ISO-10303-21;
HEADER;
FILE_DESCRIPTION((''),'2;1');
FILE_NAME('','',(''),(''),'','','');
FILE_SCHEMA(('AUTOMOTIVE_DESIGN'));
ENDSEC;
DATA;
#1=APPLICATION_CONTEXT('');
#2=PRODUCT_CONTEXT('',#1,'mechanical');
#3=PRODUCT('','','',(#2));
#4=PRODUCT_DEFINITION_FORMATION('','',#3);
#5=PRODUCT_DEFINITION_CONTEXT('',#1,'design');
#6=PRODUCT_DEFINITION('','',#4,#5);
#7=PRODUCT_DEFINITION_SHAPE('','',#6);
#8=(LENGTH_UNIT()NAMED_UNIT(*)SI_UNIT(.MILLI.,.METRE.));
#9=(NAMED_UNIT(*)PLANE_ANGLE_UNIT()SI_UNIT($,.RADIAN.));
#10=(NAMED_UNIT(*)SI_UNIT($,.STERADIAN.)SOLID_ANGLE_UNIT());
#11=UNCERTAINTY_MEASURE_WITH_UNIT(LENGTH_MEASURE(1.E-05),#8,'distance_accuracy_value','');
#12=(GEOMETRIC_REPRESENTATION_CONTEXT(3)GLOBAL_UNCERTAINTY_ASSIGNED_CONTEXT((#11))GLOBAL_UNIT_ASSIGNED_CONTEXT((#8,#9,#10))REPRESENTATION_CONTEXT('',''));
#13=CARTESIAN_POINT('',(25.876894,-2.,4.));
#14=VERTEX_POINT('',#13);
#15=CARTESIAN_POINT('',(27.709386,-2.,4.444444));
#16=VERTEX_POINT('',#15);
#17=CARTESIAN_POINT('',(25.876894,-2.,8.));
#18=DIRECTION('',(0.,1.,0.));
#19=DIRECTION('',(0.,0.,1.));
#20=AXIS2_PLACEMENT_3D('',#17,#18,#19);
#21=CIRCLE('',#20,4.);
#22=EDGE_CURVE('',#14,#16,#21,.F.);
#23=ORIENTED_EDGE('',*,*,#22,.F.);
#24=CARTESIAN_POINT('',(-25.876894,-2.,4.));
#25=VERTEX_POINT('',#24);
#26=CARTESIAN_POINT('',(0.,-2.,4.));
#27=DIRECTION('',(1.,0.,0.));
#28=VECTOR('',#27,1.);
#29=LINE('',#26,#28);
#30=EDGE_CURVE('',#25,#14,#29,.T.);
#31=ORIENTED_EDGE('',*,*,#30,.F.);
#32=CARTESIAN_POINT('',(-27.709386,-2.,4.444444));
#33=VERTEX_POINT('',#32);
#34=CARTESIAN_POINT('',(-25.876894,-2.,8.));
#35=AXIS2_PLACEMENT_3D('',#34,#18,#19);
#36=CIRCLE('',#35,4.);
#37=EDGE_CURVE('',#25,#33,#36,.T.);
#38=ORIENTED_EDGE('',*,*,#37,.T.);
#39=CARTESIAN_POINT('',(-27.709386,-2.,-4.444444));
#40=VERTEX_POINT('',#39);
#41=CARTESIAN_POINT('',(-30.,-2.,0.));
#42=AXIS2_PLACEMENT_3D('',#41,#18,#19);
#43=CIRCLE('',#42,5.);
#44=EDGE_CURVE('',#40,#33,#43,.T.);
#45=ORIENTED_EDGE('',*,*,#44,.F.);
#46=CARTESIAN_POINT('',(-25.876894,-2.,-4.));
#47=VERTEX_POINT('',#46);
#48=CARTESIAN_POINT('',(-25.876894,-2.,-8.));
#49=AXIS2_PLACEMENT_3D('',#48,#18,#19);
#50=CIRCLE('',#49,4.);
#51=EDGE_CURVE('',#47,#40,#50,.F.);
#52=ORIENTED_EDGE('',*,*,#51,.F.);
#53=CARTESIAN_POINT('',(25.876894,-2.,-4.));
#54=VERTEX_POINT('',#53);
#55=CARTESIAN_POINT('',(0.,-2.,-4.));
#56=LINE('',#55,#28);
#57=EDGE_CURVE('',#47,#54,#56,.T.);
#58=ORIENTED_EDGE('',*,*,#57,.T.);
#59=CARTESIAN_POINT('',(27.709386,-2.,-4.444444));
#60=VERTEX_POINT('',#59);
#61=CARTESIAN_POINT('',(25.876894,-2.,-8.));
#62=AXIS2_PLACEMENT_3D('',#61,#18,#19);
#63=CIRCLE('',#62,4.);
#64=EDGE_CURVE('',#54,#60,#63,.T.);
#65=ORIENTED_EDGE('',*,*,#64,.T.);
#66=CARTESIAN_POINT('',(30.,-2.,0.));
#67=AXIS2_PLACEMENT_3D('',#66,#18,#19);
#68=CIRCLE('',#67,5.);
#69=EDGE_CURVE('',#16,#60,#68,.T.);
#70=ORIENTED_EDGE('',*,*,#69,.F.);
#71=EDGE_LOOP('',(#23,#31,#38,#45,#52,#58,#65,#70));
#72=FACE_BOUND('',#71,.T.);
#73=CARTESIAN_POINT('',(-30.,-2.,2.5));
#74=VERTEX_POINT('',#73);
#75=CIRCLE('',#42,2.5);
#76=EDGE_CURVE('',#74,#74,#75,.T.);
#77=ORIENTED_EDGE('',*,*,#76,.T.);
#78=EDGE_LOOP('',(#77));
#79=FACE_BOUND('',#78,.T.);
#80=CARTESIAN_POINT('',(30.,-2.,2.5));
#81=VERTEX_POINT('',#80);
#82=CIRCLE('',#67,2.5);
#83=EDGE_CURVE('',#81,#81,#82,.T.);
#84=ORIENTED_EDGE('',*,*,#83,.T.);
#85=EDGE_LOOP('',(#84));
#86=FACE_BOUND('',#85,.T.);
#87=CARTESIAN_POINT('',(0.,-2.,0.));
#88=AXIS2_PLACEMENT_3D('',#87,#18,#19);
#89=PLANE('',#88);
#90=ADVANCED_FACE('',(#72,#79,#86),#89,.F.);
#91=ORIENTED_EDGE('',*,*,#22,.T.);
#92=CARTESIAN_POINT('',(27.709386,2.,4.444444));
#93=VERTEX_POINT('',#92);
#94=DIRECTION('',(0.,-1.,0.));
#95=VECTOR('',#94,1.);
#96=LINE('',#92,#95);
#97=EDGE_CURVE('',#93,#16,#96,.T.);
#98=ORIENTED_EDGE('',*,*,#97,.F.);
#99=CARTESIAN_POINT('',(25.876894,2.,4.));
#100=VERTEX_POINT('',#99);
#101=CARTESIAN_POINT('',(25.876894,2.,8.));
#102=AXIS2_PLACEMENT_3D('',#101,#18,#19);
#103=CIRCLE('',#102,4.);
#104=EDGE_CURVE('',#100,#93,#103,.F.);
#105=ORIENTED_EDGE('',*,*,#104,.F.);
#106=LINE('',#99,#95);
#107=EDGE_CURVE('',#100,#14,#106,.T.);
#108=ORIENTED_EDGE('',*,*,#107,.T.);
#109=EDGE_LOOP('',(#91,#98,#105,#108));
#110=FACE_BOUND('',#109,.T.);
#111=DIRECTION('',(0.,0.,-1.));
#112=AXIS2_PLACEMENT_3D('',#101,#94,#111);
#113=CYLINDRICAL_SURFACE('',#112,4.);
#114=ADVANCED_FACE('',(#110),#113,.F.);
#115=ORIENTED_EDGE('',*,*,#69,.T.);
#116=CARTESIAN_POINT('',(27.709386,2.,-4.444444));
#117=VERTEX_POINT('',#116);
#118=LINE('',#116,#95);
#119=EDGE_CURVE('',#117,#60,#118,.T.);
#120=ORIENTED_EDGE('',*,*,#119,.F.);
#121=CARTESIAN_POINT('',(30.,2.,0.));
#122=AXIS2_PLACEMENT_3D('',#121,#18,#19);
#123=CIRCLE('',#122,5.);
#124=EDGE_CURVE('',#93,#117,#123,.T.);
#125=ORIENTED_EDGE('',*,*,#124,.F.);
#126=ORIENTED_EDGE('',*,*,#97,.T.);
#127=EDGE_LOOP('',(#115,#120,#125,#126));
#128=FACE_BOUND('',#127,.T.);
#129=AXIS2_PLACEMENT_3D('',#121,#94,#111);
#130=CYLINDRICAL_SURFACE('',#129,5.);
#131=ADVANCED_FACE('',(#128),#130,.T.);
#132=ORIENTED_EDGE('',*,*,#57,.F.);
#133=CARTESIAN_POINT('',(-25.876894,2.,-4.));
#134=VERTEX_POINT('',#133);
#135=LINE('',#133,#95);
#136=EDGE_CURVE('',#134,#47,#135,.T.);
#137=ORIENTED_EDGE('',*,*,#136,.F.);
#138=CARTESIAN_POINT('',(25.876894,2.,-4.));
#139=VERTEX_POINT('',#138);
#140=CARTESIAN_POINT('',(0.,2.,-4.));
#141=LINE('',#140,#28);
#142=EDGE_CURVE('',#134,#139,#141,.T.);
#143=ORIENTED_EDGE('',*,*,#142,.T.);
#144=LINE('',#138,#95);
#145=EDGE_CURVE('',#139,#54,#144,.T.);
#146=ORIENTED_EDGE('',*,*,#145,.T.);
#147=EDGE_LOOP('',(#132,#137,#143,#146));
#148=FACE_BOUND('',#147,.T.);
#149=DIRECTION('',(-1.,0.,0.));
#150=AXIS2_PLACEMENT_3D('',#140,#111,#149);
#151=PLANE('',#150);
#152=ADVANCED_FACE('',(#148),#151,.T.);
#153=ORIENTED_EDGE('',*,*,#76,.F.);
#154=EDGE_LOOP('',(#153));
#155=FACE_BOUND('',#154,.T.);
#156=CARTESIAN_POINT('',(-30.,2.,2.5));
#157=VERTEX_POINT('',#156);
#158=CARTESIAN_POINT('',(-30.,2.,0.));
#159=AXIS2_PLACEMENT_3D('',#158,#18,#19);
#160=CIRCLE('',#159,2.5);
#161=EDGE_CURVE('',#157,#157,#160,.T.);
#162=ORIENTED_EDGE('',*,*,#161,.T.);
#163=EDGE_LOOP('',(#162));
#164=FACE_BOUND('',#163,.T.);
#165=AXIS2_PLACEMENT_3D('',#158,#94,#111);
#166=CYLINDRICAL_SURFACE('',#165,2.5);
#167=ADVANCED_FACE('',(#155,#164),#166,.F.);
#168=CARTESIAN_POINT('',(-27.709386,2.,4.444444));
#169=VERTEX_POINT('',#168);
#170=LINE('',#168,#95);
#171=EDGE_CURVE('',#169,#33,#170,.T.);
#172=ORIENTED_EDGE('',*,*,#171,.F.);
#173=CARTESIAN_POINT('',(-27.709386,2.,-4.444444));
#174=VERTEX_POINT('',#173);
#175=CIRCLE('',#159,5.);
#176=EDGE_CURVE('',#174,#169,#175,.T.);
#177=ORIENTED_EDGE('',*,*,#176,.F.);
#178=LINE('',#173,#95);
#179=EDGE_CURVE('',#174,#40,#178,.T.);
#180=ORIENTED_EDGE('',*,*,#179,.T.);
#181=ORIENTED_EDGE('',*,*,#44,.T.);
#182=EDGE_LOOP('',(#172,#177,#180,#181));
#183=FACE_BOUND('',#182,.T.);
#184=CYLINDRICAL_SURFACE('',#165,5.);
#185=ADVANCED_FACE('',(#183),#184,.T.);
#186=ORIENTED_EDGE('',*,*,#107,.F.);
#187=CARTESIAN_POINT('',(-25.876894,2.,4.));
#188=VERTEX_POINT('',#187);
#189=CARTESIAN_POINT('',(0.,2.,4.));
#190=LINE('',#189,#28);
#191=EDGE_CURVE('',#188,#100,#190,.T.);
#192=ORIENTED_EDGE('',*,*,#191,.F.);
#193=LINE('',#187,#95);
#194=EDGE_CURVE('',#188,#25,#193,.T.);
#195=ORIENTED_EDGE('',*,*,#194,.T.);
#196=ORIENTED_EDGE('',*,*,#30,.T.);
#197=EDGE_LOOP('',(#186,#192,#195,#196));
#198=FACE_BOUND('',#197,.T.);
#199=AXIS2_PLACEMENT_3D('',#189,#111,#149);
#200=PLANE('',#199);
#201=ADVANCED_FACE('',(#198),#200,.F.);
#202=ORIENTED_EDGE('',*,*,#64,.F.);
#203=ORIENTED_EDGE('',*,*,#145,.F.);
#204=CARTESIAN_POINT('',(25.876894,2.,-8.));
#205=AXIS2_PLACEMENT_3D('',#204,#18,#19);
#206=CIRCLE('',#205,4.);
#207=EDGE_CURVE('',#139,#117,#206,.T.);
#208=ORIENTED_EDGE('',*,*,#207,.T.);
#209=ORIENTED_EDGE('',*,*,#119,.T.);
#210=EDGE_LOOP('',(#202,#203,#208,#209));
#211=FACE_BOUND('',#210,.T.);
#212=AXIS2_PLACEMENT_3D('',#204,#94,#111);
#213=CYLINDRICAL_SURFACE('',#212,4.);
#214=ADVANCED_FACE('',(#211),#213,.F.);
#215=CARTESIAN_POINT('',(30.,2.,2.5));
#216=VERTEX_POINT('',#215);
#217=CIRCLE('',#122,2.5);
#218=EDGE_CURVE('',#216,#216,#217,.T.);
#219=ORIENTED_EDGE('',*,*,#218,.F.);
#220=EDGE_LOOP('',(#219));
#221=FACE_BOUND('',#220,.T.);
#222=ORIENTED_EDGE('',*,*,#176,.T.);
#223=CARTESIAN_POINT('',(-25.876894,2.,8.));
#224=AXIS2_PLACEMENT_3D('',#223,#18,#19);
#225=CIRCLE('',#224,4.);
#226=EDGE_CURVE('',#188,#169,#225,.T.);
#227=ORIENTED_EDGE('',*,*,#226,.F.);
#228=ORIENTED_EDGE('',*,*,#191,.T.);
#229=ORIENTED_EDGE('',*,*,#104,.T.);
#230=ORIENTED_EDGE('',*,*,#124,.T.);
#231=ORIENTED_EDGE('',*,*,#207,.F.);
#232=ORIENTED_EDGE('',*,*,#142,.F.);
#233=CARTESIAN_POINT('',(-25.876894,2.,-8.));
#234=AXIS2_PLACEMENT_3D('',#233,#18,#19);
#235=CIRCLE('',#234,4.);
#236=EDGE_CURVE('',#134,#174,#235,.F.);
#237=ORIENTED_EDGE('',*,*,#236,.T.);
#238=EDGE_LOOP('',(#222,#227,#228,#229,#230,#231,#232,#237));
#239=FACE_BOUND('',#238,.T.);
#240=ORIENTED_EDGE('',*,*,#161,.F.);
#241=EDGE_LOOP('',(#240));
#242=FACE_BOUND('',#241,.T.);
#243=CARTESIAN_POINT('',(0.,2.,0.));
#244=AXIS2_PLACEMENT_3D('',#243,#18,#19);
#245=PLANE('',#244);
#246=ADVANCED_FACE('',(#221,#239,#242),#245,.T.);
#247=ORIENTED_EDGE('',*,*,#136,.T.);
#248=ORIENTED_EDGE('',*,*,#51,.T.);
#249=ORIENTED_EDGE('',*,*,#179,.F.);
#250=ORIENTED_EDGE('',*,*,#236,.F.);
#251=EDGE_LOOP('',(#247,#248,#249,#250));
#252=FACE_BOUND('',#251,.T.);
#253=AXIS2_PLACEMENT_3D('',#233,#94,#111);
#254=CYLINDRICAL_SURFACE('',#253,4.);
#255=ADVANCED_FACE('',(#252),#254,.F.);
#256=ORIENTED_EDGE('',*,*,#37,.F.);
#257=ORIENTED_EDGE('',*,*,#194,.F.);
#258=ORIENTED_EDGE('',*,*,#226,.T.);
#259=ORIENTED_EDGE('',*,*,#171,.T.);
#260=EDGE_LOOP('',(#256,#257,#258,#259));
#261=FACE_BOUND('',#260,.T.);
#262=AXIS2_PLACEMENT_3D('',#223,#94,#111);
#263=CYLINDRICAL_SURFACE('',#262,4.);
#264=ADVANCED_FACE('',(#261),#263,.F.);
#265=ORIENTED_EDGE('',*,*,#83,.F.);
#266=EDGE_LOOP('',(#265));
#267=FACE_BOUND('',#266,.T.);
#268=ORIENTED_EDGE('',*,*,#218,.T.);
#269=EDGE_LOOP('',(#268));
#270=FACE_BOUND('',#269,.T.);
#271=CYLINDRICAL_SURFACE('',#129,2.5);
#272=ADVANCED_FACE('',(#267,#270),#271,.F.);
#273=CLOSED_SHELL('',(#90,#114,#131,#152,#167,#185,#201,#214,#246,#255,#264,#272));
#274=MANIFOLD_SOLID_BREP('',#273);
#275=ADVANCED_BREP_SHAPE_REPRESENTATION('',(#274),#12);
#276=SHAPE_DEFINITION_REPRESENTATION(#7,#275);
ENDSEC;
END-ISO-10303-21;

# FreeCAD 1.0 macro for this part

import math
import FreeCAD as App
import Part
import Sketcher

doc = App.newDocument("Part")
params = doc.addObject("Spreadsheet::Sheet", "Params")
for row, (alias, value) in enumerate([
    ("sketch1_diameter", "5 mm"),
    ("sketch1_radius", "4 mm"),
    ("sketch1_radius2", "5 mm"),
    ("pad1_length", "4 mm"),
], start=1):
    params.set(f"A{row}", alias)
    params.set(f"B{row}", "=" + value)
    params.setAlias(f"B{row}", alias)

body = doc.addObject("PartDesign::Body", "Body")

# Sketch on XZ plane
sketch1 = body.newObject("Sketcher::SketchObject", "Sketch")
sketch1.AttachmentSupport = (doc.getObject("XZ_Plane"), [""])
sketch1.MapMode = "FlatFace"
sketch1.addGeometry([
    Part.LineSegment(App.Vector(25.9, -4, 0), App.Vector(-25.9, -4, 0)),  # 0
    Part.ArcOfCircle(Part.Circle(App.Vector(-25.9, -8, 0), App.Vector(0, 0, 1), 4), math.radians(90), math.radians(117)),  # 1
    Part.ArcOfCircle(Part.Circle(App.Vector(-30, 0, 0), App.Vector(0, 0, 1), 5), math.radians(63), math.radians(297)),  # 2
    Part.ArcOfCircle(Part.Circle(App.Vector(-25.9, 8, 0), App.Vector(0, 0, 1), 4), math.radians(-117), math.radians(-90)),  # 3
    Part.LineSegment(App.Vector(-25.9, 4, 0), App.Vector(25.9, 4, 0)),  # 4
    Part.ArcOfCircle(Part.Circle(App.Vector(25.9, 8, 0), App.Vector(0, 0, 1), 4), math.radians(-90), math.radians(-63)),  # 5
    Part.ArcOfCircle(Part.Circle(App.Vector(30, 0, 0), App.Vector(0, 0, 1), 5), math.radians(-117), math.radians(117)),  # 6
    Part.ArcOfCircle(Part.Circle(App.Vector(25.9, -8, 0), App.Vector(0, 0, 1), 4), math.radians(63), math.radians(90)),  # 7
    Part.Circle(App.Vector(30, 0, 0), App.Vector(0, 0, 1), 2.5),  # 8
    Part.Circle(App.Vector(-30, 0, 0), App.Vector(0, 0, 1), 2.5),  # 9
], False)
sketch1.addConstraint([
    Sketcher.Constraint("Tangent", 0, 2, 1, 1),
    Sketcher.Constraint("Tangent", 1, 2, 2, 2),
    Sketcher.Constraint("Tangent", 2, 1, 3, 1),
    Sketcher.Constraint("Tangent", 3, 2, 4, 1),
    Sketcher.Constraint("Tangent", 4, 2, 5, 1),
    Sketcher.Constraint("Tangent", 5, 2, 6, 2),
    Sketcher.Constraint("Tangent", 6, 1, 7, 1),
    Sketcher.Constraint("Tangent", 7, 2, 0, 1),
    Sketcher.Constraint("Horizontal", 0),
    Sketcher.Constraint("Horizontal", 4),
    Sketcher.Constraint("Coincident", 8, 3, 6, 3),
    Sketcher.Constraint("Coincident", 9, 3, 2, 3),
    Sketcher.Constraint("Equal", 1, 3),
    Sketcher.Constraint("Equal", 3, 5),
    Sketcher.Constraint("Equal", 2, 6),
    Sketcher.Constraint("Equal", 5, 7),
    Sketcher.Constraint("Equal", 8, 9),
    Sketcher.Constraint("Symmetric", 1, 3, 5, 3, -1, 1),
    Sketcher.Constraint("Symmetric", 2, 3, 6, 3, -2),
    Sketcher.Constraint("Diameter", 8, 5.0),
    Sketcher.Constraint("Radius", 1, 4.0),
    Sketcher.Constraint("Radius", 2, 5.0),
    Sketcher.Constraint("DistanceY", 1, 3, -1, 1, 8.0),
    Sketcher.Constraint("DistanceX", 2, 3, -1, 1, 30.0),
])
sketch1.setExpression("Constraints[19]", "Params.sketch1_diameter")
sketch1.setExpression("Constraints[20]", "Params.sketch1_radius")
sketch1.setExpression("Constraints[21]", "Params.sketch1_radius2")
pad1 = body.newObject("PartDesign::Pad", "Pad")
pad1.Profile = sketch1
pad1.setExpression("Length", "Params.pad1_length")
pad1.Midplane = True

doc.recompute()
